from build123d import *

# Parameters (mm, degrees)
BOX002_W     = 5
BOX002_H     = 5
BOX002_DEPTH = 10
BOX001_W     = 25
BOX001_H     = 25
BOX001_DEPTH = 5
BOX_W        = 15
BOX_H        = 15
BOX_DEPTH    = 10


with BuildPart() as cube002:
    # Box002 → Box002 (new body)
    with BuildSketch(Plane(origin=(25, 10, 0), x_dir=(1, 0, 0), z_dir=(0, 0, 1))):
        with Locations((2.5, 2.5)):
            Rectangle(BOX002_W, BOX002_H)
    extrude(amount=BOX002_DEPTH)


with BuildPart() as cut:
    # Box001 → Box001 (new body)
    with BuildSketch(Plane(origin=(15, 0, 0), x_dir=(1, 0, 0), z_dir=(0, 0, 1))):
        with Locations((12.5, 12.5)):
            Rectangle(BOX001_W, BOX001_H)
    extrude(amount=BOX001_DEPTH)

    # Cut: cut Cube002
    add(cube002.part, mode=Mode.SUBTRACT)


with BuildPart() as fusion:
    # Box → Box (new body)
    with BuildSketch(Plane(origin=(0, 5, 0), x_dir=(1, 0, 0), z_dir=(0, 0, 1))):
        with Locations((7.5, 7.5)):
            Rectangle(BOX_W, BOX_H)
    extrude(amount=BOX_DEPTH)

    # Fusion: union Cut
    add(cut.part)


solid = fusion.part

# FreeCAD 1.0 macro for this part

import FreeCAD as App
import Part
import Sketcher
from FreeCAD import Vector
Q = App.Units.Quantity

doc = App.newDocument("Part")
body = doc.addObject("PartDesign::Body", "Body")

# Sketch on XY plane
sketch1 = body.newObject("Sketcher::SketchObject", "Sketch")
sketch1.AttachmentSupport = (doc.getObject("XY_Plane"), [""])
sketch1.MapMode = "FlatFace"
sketch1.addGeometry([
    Part.LineSegment(Vector(25, 15, 0), Vector(25, 10, 0)),
    Part.LineSegment(Vector(25, 10, 0), Vector(30, 10, 0)),
    Part.LineSegment(Vector(30, 10, 0), Vector(30, 15, 0)),
    Part.LineSegment(Vector(30, 15, 0), Vector(25, 15, 0)),
], False)
sketch1.addConstraint([
    Sketcher.Constraint("Coincident", 0, 2, 1, 1),
    Sketcher.Constraint("Coincident", 1, 2, 2, 1),
    Sketcher.Constraint("Coincident", 2, 2, 3, 1),
    Sketcher.Constraint("Coincident", 3, 2, 0, 1),
    Sketcher.Constraint("Vertical", 0),
    Sketcher.Constraint("Horizontal", 1),
    Sketcher.Constraint("Vertical", 2),
    Sketcher.Constraint("Horizontal", 3),
    Sketcher.Constraint("Equal", 3, 0),
    Sketcher.Constraint("DistanceX", 1, 1, 1, 2, Q("5 mm")),
    Sketcher.Constraint("DistanceX", -1, 1, 0, 2, Q("25 mm")),
    Sketcher.Constraint("DistanceY", -1, 1, 0, 2, Q("10 mm")),
])
pad1 = body.newObject("PartDesign::Pad", "Pad")
pad1.Profile = sketch1
pad1.Length = 10
body2 = doc.addObject("PartDesign::Body", "Body001")

# Sketch on XY plane
sketch2 = body2.newObject("Sketcher::SketchObject", "Sketch001")
sketch2.AttachmentSupport = (doc.getObject("XY_Plane001"), [""])
sketch2.MapMode = "FlatFace"
sketch2.addGeometry([
    Part.LineSegment(Vector(15, 25, 0), Vector(15, 0, 0)),
    Part.LineSegment(Vector(15, 0, 0), Vector(40, 0, 0)),
    Part.LineSegment(Vector(40, 0, 0), Vector(40, 25, 0)),
    Part.LineSegment(Vector(40, 25, 0), Vector(15, 25, 0)),
], False)
sketch2.addConstraint([
    Sketcher.Constraint("Coincident", 0, 2, 1, 1),
    Sketcher.Constraint("Coincident", 1, 2, 2, 1),
    Sketcher.Constraint("Coincident", 2, 2, 3, 1),
    Sketcher.Constraint("Coincident", 3, 2, 0, 1),
    Sketcher.Constraint("Vertical", 0),
    Sketcher.Constraint("Horizontal", 1),
    Sketcher.Constraint("Vertical", 2),
    Sketcher.Constraint("Horizontal", 3),
    Sketcher.Constraint("PointOnObject", 0, 2, -1),
    Sketcher.Constraint("Equal", 3, 0),
    Sketcher.Constraint("DistanceX", 1, 1, 1, 2, Q("25 mm")),
    Sketcher.Constraint("DistanceX", -1, 1, 0, 2, Q("15 mm")),
])
pad2 = body2.newObject("PartDesign::Pad", "Pad001")
pad2.Profile = sketch2
pad2.Length = 5
doc.recompute()

boolean = body2.newObject("PartDesign::Boolean", "Boolean")
boolean.Type = "Cut"
boolean.addObjects([body])
body3 = doc.addObject("PartDesign::Body", "Body002")

# Sketch on XY plane
sketch3 = body3.newObject("Sketcher::SketchObject", "Sketch002")
sketch3.AttachmentSupport = (doc.getObject("XY_Plane002"), [""])
sketch3.MapMode = "FlatFace"
sketch3.addGeometry([
    Part.LineSegment(Vector(0, 20, 0), Vector(0, 5, 0)),
    Part.LineSegment(Vector(0, 5, 0), Vector(15, 5, 0)),
    Part.LineSegment(Vector(15, 5, 0), Vector(15, 20, 0)),
    Part.LineSegment(Vector(15, 20, 0), Vector(0, 20, 0)),
], False)
sketch3.addConstraint([
    Sketcher.Constraint("Coincident", 0, 2, 1, 1),
    Sketcher.Constraint("Coincident", 1, 2, 2, 1),
    Sketcher.Constraint("Coincident", 2, 2, 3, 1),
    Sketcher.Constraint("Coincident", 3, 2, 0, 1),
    Sketcher.Constraint("Vertical", 0),
    Sketcher.Constraint("Horizontal", 1),
    Sketcher.Constraint("Vertical", 2),
    Sketcher.Constraint("Horizontal", 3),
    Sketcher.Constraint("PointOnObject", 0, 2, -2),
    Sketcher.Constraint("Equal", 3, 0),
    Sketcher.Constraint("DistanceX", 1, 1, 1, 2, Q("15 mm")),
    Sketcher.Constraint("DistanceY", -1, 1, 0, 2, Q("5 mm")),
])
pad3 = body3.newObject("PartDesign::Pad", "Pad002")
pad3.Profile = sketch3
pad3.Length = 10
doc.recompute()

boolean2 = body3.newObject("PartDesign::Boolean", "Boolean001")
boolean2.Type = "Fuse"
boolean2.addObjects([body2])

doc.recompute()
